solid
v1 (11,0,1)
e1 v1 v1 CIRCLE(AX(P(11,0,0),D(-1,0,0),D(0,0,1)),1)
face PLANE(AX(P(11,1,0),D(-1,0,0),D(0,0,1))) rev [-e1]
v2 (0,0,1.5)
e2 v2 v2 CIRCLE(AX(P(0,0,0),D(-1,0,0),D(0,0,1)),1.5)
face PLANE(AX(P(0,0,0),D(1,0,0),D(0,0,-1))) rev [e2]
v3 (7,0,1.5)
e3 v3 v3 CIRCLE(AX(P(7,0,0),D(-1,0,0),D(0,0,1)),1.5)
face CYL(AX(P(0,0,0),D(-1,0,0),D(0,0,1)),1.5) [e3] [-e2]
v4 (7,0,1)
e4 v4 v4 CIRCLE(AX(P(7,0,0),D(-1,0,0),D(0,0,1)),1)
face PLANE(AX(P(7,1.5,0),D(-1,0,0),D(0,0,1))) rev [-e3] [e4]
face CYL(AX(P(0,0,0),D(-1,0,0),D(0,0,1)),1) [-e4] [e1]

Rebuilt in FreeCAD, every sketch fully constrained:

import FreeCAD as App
import Part
import Sketcher
from FreeCAD import Vector
Q = App.Units.Quantity

doc = App.newDocument("Part")
params = doc.addObject("Spreadsheet::Sheet", "Params")
for row, (alias, value) in enumerate([
    ("sketch1_width", "11 mm"),
    ("sketch1_width2", "4 mm"),
    ("sketch1_height", "1 mm"),
    ("sketch1_height2", "1.5 mm"),
    ("revolution_angle", "360 deg"),
], start=1):
    params.set(f"A{row}", alias)
    params.set(f"B{row}", "=" + value)
    params.setAlias(f"B{row}", alias)

body = doc.addObject("PartDesign::Body", "Body")

# Sketch on XY plane
sketch1 = doc.addObject("Sketcher::SketchObject", "Sketch")
body.addObject(sketch1)
sketch1.AttachmentSupport = (doc.XY_Plane, [""])
sketch1.MapMode = "FlatFace"
sketch1.addGeometry([
    Part.LineSegment(Vector(0, 1.5, 0), Vector(0, 0, 0)),  # 0
    Part.LineSegment(Vector(0, 0, 0), Vector(11, 0, 0)),  # 1
    Part.LineSegment(Vector(11, 0, 0), Vector(11, 1, 0)),  # 2
    Part.LineSegment(Vector(11, 1, 0), Vector(7, 1, 0)),  # 3
    Part.LineSegment(Vector(7, 1, 0), Vector(7, 1.5, 0)),  # 4
    Part.LineSegment(Vector(7, 1.5, 0), Vector(0, 1.5, 0)),  # 5
], False)
sketch1.addConstraint([
    Sketcher.Constraint("Coincident", 0, 2, 1, 1),
    Sketcher.Constraint("Coincident", 1, 2, 2, 1),
    Sketcher.Constraint("Coincident", 2, 2, 3, 1),
    Sketcher.Constraint("Coincident", 3, 2, 4, 1),
    Sketcher.Constraint("Coincident", 4, 2, 5, 1),
    Sketcher.Constraint("Coincident", 5, 2, 0, 1),
    Sketcher.Constraint("Vertical", 0),
    Sketcher.Constraint("Horizontal", 1),
    Sketcher.Constraint("Vertical", 2),
    Sketcher.Constraint("Horizontal", 3),
    Sketcher.Constraint("Vertical", 4),
    Sketcher.Constraint("Horizontal", 5),
    Sketcher.Constraint("Coincident", 0, 2, -1, 1),
    Sketcher.Constraint("DistanceX", 1, 1, 1, 2, Q("11 mm")),
    Sketcher.Constraint("DistanceX", 3, 2, 3, 1, Q("4 mm")),
    Sketcher.Constraint("DistanceY", 2, 1, 2, 2, Q("1 mm")),
    Sketcher.Constraint("DistanceY", 0, 2, 0, 1, Q("1.5 mm")),
])
sketch1.setExpression("Constraints[13]", "Params.sketch1_width")
sketch1.setExpression("Constraints[14]", "Params.sketch1_width2")
sketch1.setExpression("Constraints[15]", "Params.sketch1_height")
sketch1.setExpression("Constraints[16]", "Params.sketch1_height2")
revolution = doc.addObject("PartDesign::Revolution", "Revolution")
body.addObject(revolution)
revolution.Profile = sketch1
revolution.ReferenceAxis = (sketch1, ["H_Axis"])
revolution.setExpression("Angle", "Params.revolution_angle")

doc.recompute()
